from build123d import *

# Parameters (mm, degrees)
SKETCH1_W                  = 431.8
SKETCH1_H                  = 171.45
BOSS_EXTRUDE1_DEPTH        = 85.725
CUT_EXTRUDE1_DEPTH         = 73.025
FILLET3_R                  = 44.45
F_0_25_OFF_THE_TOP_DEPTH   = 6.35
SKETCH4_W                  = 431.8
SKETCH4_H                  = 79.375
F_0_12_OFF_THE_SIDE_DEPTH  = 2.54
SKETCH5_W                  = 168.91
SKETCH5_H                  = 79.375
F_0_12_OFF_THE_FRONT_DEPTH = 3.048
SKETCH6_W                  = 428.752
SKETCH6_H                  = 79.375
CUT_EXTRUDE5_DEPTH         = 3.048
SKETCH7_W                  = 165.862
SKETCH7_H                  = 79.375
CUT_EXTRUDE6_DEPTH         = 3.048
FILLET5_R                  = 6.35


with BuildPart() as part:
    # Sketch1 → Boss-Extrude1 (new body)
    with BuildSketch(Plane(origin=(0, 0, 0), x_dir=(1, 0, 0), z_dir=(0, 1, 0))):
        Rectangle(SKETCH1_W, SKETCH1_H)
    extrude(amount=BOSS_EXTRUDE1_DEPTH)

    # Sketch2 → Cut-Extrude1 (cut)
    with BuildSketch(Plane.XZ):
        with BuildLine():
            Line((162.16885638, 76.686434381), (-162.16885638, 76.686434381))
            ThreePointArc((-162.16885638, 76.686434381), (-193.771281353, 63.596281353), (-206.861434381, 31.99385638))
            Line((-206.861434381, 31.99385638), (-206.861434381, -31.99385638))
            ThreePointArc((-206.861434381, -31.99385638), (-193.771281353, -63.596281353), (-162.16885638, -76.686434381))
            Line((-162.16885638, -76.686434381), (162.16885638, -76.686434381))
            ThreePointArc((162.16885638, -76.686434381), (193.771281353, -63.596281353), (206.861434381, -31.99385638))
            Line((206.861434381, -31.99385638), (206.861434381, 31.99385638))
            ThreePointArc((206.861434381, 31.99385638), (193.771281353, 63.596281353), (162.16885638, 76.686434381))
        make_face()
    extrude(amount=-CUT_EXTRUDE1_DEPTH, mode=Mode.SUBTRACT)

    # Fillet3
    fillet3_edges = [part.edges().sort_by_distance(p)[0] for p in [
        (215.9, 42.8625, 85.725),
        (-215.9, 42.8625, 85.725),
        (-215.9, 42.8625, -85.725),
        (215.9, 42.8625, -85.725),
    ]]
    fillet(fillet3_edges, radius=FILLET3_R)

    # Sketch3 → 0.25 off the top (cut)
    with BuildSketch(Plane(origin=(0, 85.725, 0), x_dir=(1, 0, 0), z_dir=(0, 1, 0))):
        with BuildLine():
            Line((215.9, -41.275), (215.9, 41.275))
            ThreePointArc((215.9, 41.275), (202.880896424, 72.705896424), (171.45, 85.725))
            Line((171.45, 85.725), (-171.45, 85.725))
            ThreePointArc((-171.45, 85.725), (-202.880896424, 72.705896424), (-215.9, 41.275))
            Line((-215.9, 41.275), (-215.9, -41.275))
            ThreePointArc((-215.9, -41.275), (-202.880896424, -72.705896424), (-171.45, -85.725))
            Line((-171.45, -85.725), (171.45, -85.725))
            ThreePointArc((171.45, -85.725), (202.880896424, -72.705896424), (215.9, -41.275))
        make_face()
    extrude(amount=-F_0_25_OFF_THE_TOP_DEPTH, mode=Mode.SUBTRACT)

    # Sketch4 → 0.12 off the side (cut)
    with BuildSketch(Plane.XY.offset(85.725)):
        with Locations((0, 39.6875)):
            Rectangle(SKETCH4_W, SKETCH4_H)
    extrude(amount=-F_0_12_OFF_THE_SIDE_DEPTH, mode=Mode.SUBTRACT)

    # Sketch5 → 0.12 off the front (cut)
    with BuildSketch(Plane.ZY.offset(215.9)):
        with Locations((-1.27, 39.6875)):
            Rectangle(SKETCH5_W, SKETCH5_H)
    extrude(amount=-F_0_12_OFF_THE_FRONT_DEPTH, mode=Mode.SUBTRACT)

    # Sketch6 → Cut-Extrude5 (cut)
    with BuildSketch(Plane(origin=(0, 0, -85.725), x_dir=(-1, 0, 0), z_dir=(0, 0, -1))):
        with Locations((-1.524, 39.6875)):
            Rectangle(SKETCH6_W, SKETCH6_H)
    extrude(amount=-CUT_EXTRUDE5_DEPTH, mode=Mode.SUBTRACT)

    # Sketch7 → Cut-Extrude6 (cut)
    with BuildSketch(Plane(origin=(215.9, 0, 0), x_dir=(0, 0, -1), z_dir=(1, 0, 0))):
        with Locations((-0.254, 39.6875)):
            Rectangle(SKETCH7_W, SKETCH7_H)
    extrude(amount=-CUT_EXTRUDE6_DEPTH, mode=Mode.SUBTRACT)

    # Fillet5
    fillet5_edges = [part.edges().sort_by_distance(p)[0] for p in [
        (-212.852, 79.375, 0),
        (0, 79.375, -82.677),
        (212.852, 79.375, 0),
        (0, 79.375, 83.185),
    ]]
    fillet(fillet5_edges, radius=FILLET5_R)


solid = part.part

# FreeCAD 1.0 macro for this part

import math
import FreeCAD as App
import Part
import Sketcher
Q = App.Units.Quantity


def edges_at(feature, points):
    """Names of the edges that pass closest to the given points."""
    edges = feature.Shape.Edges
    near = lambda p: min(range(len(edges)), key=lambda i: edges[i].distToShape(Part.Vertex(*p))[0])
    return sorted({f"Edge{near(p) + 1}" for p in points})


def add_polygon(sketch, points):
    """Adds a closed chain of lines whose ends are joined by coincident constraints."""
    first, n = sketch.GeometryCount, len(points)
    for a, b in zip(points, points[1:] + points[:1]):
        sketch.addGeometry(Part.LineSegment(App.Vector(*a, 0), App.Vector(*b, 0)), False)
    for i in range(n):
        sketch.addConstraint(Sketcher.Constraint("Coincident", first + i, 2, first + (i + 1) % n, 1))

doc = App.newDocument("Part")
body = doc.addObject("PartDesign::Body", "Body")

# Sketch on XZ plane
sketch1 = body.newObject("Sketcher::SketchObject", "Sketch")
sketch1.AttachmentSupport = (doc.getObject("XZ_Plane"), [""])
sketch1.MapMode = "FlatFace"
add_polygon(sketch1, [(-216, -86), (-216, 86), (216, 86), (216, -86)])  # lines 0-3
sketch1.addConstraint(Sketcher.Constraint("Vertical", 0))
sketch1.addConstraint(Sketcher.Constraint("Horizontal", 1))
sketch1.addConstraint(Sketcher.Constraint("Vertical", 2))
sketch1.addConstraint(Sketcher.Constraint("Horizontal", 3))
sketch1.addConstraint(Sketcher.Constraint("Symmetric", 0, 2, 2, 2, -1, 1))
sketch1.addConstraint(Sketcher.Constraint("DistanceX", 1, 1, 1, 2, Q("17 in")))
sketch1.addConstraint(Sketcher.Constraint("DistanceY", 0, 1, 0, 2, Q("6.75 in")))
pad1 = body.newObject("PartDesign::Pad", "Pad")
pad1.Profile = sketch1
pad1.Length = Q("3.375 in")
pad1.Reversed = True

# Sketch on XZ plane
sketch2 = body.newObject("Sketcher::SketchObject", "Sketch001")
sketch2.AttachmentSupport = (doc.getObject("XZ_Plane"), [""])
sketch2.MapMode = "FlatFace"
sketch2.addGeometry(Part.LineSegment(App.Vector(162, 77, 0), App.Vector(-162, 77, 0)), False)
sketch2.addGeometry(Part.ArcOfCircle(Part.Circle(App.Vector(-162, 32, 0), App.Vector(0, 0, 1), 45), math.radians(90), math.radians(180)), False)
sketch2.addGeometry(Part.LineSegment(App.Vector(-207, 32, 0), App.Vector(-207, -32, 0)), False)
sketch2.addGeometry(Part.ArcOfCircle(Part.Circle(App.Vector(-162, -32, 0), App.Vector(0, 0, 1), 45), math.radians(-180), math.radians(-90)), False)
sketch2.addGeometry(Part.LineSegment(App.Vector(-162, -77, 0), App.Vector(162, -77, 0)), False)
sketch2.addGeometry(Part.ArcOfCircle(Part.Circle(App.Vector(162, -32, 0), App.Vector(0, 0, 1), 45), math.radians(-90), math.radians(0)), False)
sketch2.addGeometry(Part.LineSegment(App.Vector(207, -32, 0), App.Vector(207, 32, 0)), False)
sketch2.addGeometry(Part.ArcOfCircle(Part.Circle(App.Vector(162, 32, 0), App.Vector(0, 0, 1), 45), math.radians(0), math.radians(90)), False)
sketch2.addConstraint(Sketcher.Constraint("Tangent", 0, 2, 1, 1))
sketch2.addConstraint(Sketcher.Constraint("Tangent", 1, 2, 2, 1))
sketch2.addConstraint(Sketcher.Constraint("Tangent", 2, 2, 3, 1))
sketch2.addConstraint(Sketcher.Constraint("Tangent", 3, 2, 4, 1))
sketch2.addConstraint(Sketcher.Constraint("Tangent", 4, 2, 5, 1))
sketch2.addConstraint(Sketcher.Constraint("Tangent", 5, 2, 6, 1))
sketch2.addConstraint(Sketcher.Constraint("Tangent", 6, 2, 7, 1))
sketch2.addConstraint(Sketcher.Constraint("Tangent", 7, 2, 0, 1))
sketch2.addConstraint(Sketcher.Constraint("Horizontal", 0))
sketch2.addConstraint(Sketcher.Constraint("Vertical", 2))
sketch2.addConstraint(Sketcher.Constraint("Horizontal", 4))
sketch2.addConstraint(Sketcher.Constraint("Vertical", 6))
sketch2.addConstraint(Sketcher.Constraint("Equal", 1, 3))
sketch2.addConstraint(Sketcher.Constraint("Equal", 3, 5))
sketch2.addConstraint(Sketcher.Constraint("Equal", 5, 7))
sketch2.addConstraint(Sketcher.Constraint("Symmetric", 1, 3, 5, 3, -1, 1))
sketch2.addConstraint(Sketcher.Constraint("Radius", 1, Q("44.692578 mm")))
sketch2.addConstraint(Sketcher.Constraint("DistanceX", 0, 2, 0, 1, Q("324.337713 mm")))
sketch2.addConstraint(Sketcher.Constraint("DistanceY", 2, 2, 2, 1, Q("63.987713 mm")))
pocket1 = body.newObject("PartDesign::Pocket", "Pocket")
pocket1.Profile = sketch2
pocket1.Length = Q("2.875 in")
doc.recompute()

fillet = body.newObject("PartDesign::Fillet", "Fillet")
fillet.Base = (pocket1, edges_at(pocket1, [
    (215.9, 42.862, 85.725),
    (-215.9, 42.862, 85.725),
    (-215.9, 42.862, -85.725),
    (215.9, 42.862, -85.725),
]))
fillet.Radius = Q("1.75 in")

# Sketch on XZ plane
sketch3 = body.newObject("Sketcher::SketchObject", "Sketch002")
sketch3.AttachmentSupport = (doc.getObject("XZ_Plane"), [""])
sketch3.MapMode = "FlatFace"
sketch3.AttachmentOffset = App.Placement(App.Vector(0, 0, -3.375 * 25.4), App.Rotation())
sketch3.addGeometry(Part.LineSegment(App.Vector(216, 41, 0), App.Vector(216, -41, 0)), False)
sketch3.addGeometry(Part.ArcOfCircle(Part.Circle(App.Vector(171, -41, 0), App.Vector(0, 0, 1), 44), math.radians(-90), math.radians(0)), False)
sketch3.addGeometry(Part.LineSegment(App.Vector(171, -86, 0), App.Vector(-171, -86, 0)), False)
sketch3.addGeometry(Part.ArcOfCircle(Part.Circle(App.Vector(-171, -41, 0), App.Vector(0, 0, 1), 44), math.radians(180), math.radians(270)), False)
sketch3.addGeometry(Part.LineSegment(App.Vector(-216, -41, 0), App.Vector(-216, 41, 0)), False)
sketch3.addGeometry(Part.ArcOfCircle(Part.Circle(App.Vector(-171, 41, 0), App.Vector(0, 0, 1), 44), math.radians(90), math.radians(180)), False)
sketch3.addGeometry(Part.LineSegment(App.Vector(-171, 86, 0), App.Vector(171, 86, 0)), False)
sketch3.addGeometry(Part.ArcOfCircle(Part.Circle(App.Vector(171, 41, 0), App.Vector(0, 0, 1), 44), math.radians(0), math.radians(90)), False)
sketch3.addConstraint(Sketcher.Constraint("Tangent", 0, 2, 1, 2))
sketch3.addConstraint(Sketcher.Constraint("Tangent", 1, 1, 2, 1))
sketch3.addConstraint(Sketcher.Constraint("Tangent", 2, 2, 3, 2))
sketch3.addConstraint(Sketcher.Constraint("Tangent", 3, 1, 4, 1))
sketch3.addConstraint(Sketcher.Constraint("Tangent", 4, 2, 5, 2))
sketch3.addConstraint(Sketcher.Constraint("Tangent", 5, 1, 6, 1))
sketch3.addConstraint(Sketcher.Constraint("Tangent", 6, 2, 7, 2))
sketch3.addConstraint(Sketcher.Constraint("Tangent", 7, 1, 0, 1))
sketch3.addConstraint(Sketcher.Constraint("Vertical", 0))
sketch3.addConstraint(Sketcher.Constraint("Horizontal", 2))
sketch3.addConstraint(Sketcher.Constraint("Vertical", 4))
sketch3.addConstraint(Sketcher.Constraint("Horizontal", 6))
sketch3.addConstraint(Sketcher.Constraint("Equal", 1, 3))
sketch3.addConstraint(Sketcher.Constraint("Equal", 3, 5))
sketch3.addConstraint(Sketcher.Constraint("Equal", 5, 7))
sketch3.addConstraint(Sketcher.Constraint("Symmetric", 1, 3, 5, 3, -1, 1))
sketch3.addConstraint(Sketcher.Constraint("Radius", 1, Q("1.75 in")))
sketch3.addConstraint(Sketcher.Constraint("DistanceX", 2, 2, 2, 1, Q("13.5 in")))
sketch3.addConstraint(Sketcher.Constraint("DistanceY", 1, 1, 7, 3, Q("5 in")))
pocket2 = body.newObject("PartDesign::Pocket", "Pocket001")
pocket2.Profile = sketch3
pocket2.Length = Q("0.25 in")
pocket2.Reversed = True

# Sketch on XY plane
sketch4 = body.newObject("Sketcher::SketchObject", "Sketch003")
sketch4.AttachmentSupport = (doc.getObject("XY_Plane"), [""])
sketch4.MapMode = "FlatFace"
sketch4.AttachmentOffset = App.Placement(App.Vector(0, 0, 3.375 * 25.4), App.Rotation())
add_polygon(sketch4, [(-216, 79), (-216, 0), (216, 0), (216, 79)])  # lines 0-3
sketch4.addConstraint(Sketcher.Constraint("Vertical", 0))
sketch4.addConstraint(Sketcher.Constraint("Horizontal", 1))
sketch4.addConstraint(Sketcher.Constraint("Vertical", 2))
sketch4.addConstraint(Sketcher.Constraint("Horizontal", 3))
sketch4.addConstraint(Sketcher.Constraint("Symmetric", 0, 2, 1, 2, -1, 1))
sketch4.addConstraint(Sketcher.Constraint("DistanceX", 1, 1, 1, 2, Q("17 in")))
sketch4.addConstraint(Sketcher.Constraint("DistanceY", 0, 2, 0, 1, Q("3.125 in")))
pocket3 = body.newObject("PartDesign::Pocket", "Pocket002")
pocket3.Profile = sketch4
pocket3.Length = Q("0.1 in")

# Sketch on YZ plane
sketch5 = body.newObject("Sketcher::SketchObject", "Sketch004")
sketch5.AttachmentSupport = (doc.getObject("YZ_Plane"), [""])
sketch5.MapMode = "FlatFace"
sketch5.AttachmentOffset = App.Placement(App.Vector(0, 0, -8.5 * 25.4), App.Rotation())
add_polygon(sketch5, [(79, -86), (0, -86), (0, 83), (79, 83)])  # lines 0-3
sketch5.addConstraint(Sketcher.Constraint("Horizontal", 0))
sketch5.addConstraint(Sketcher.Constraint("Vertical", 1))
sketch5.addConstraint(Sketcher.Constraint("Horizontal", 2))
sketch5.addConstraint(Sketcher.Constraint("Vertical", 3))
sketch5.addConstraint(Sketcher.Constraint("PointOnObject", 0, 2, -2))
sketch5.addConstraint(Sketcher.Constraint("DistanceY", 1, 1, 1, 2, Q("6.65 in")))
sketch5.addConstraint(Sketcher.Constraint("DistanceX", 0, 2, 0, 1, Q("3.125 in")))
sketch5.addConstraint(Sketcher.Constraint("DistanceY", 0, 2, -1, 1, Q("3.375 in")))
pocket4 = body.newObject("PartDesign::Pocket", "Pocket003")
pocket4.Profile = sketch5
pocket4.Length = Q("0.12 in")
pocket4.Reversed = True

# Sketch on XY plane
sketch6 = body.newObject("Sketcher::SketchObject", "Sketch005")
sketch6.AttachmentSupport = (doc.getObject("XY_Plane"), [""])
sketch6.MapMode = "FlatFace"
sketch6.AttachmentOffset = App.Placement(App.Vector(0, 0, -3.375 * 25.4), App.Rotation())
add_polygon(sketch6, [(216, 79), (216, 0), (-213, 0), (-213, 79)])  # lines 0-3
sketch6.addConstraint(Sketcher.Constraint("Vertical", 0))
sketch6.addConstraint(Sketcher.Constraint("Horizontal", 1))
sketch6.addConstraint(Sketcher.Constraint("Vertical", 2))
sketch6.addConstraint(Sketcher.Constraint("Horizontal", 3))
sketch6.addConstraint(Sketcher.Constraint("PointOnObject", 0, 2, -1))
sketch6.addConstraint(Sketcher.Constraint("DistanceX", 1, 2, 1, 1, Q("16.88 in")))
sketch6.addConstraint(Sketcher.Constraint("DistanceX", -1, 1, 0, 2, Q("8.5 in")))
sketch6.addConstraint(Sketcher.Constraint("DistanceY", 0, 2, 0, 1, Q("3.125 in")))
pocket5 = body.newObject("PartDesign::Pocket", "Pocket004")
pocket5.Profile = sketch6
pocket5.Length = Q("0.12 in")
pocket5.Reversed = True

# Sketch on YZ plane
sketch7 = body.newObject("Sketcher::SketchObject", "Sketch006")
sketch7.AttachmentSupport = (doc.getObject("YZ_Plane"), [""])
sketch7.MapMode = "FlatFace"
sketch7.AttachmentOffset = App.Placement(App.Vector(0, 0, 8.5 * 25.4), App.Rotation())
add_polygon(sketch7, [(79, 83), (0, 83), (0, -83), (79, -83)])  # lines 0-3
sketch7.addConstraint(Sketcher.Constraint("Horizontal", 0))
sketch7.addConstraint(Sketcher.Constraint("Vertical", 1))
sketch7.addConstraint(Sketcher.Constraint("Horizontal", 2))
sketch7.addConstraint(Sketcher.Constraint("Vertical", 3))
sketch7.addConstraint(Sketcher.Constraint("PointOnObject", 0, 2, -2))
sketch7.addConstraint(Sketcher.Constraint("DistanceY", 1, 2, 1, 1, Q("6.53 in")))
sketch7.addConstraint(Sketcher.Constraint("DistanceX", 0, 2, 0, 1, Q("3.125 in")))
sketch7.addConstraint(Sketcher.Constraint("DistanceY", -1, 1, 0, 2, Q("3.275 in")))
pocket6 = body.newObject("PartDesign::Pocket", "Pocket005")
pocket6.Profile = sketch7
pocket6.Length = Q("0.12 in")
doc.recompute()

fillet2 = body.newObject("PartDesign::Fillet", "Fillet001")
fillet2.Base = (pocket6, edges_at(pocket6, [
    (-212.852, 79.375, 0),
    (0, 79.375, -82.677),
    (212.852, 79.375, 0),
    (0, 79.375, 83.185),
]))
fillet2.Radius = Q("0.25 in")

doc.recompute()
